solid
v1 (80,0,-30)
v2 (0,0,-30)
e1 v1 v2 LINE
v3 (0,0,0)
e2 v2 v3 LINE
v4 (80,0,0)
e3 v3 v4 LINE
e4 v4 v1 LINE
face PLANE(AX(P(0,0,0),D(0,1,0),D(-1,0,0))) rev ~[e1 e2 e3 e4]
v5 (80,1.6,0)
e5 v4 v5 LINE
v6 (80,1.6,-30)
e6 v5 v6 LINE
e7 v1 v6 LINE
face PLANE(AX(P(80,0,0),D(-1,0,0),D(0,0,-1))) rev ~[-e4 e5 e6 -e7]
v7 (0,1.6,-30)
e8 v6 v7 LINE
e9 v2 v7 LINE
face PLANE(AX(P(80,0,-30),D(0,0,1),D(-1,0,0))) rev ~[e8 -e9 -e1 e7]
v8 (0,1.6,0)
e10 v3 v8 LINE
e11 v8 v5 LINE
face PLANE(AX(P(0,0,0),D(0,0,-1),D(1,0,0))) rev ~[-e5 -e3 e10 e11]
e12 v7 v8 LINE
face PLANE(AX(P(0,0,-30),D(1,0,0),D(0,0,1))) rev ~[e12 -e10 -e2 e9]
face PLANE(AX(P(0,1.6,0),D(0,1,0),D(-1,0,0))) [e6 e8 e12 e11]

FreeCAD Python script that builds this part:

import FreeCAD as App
import Part
import Sketcher

V = App.Vector
Q = App.Units.Quantity


def add_polygon(sketch, points):
    """Adds a closed chain of lines whose ends are joined by coincident constraints."""
    first, n = sketch.GeometryCount, len(points)
    for a, b in zip(points, points[1:] + points[:1]):
        sketch.addGeometry(Part.LineSegment(App.Vector(*a, 0), App.Vector(*b, 0)), False)
    for i in range(n):
        sketch.addConstraint(Sketcher.Constraint("Coincident", first + i, 2, first + (i + 1) % n, 1))

doc = App.newDocument("Part")
body = doc.addObject("PartDesign::Body", "Body")

sketch1 = doc.addObject("Sketcher::SketchObject", "Sketch")
body.addObject(sketch1)
sketch1.AttachmentSupport = (doc.XZ_Plane, [""])
sketch1.MapMode = "FlatFace"
add_polygon(sketch1, [(0, -30), (0, 0), (80, 0), (80, -30)])
sketch1.addConstraint([
    Sketcher.Constraint("Vertical", 0),
    Sketcher.Constraint("Horizontal", 1),
    Sketcher.Constraint("Vertical", 2),
    Sketcher.Constraint("Horizontal", 3),
    Sketcher.Constraint("Coincident", 0, 2, -1, 1),
    Sketcher.Constraint("DistanceX", 1, 1, 1, 2, Q("3.1496 in")),
    Sketcher.Constraint("DistanceY", 0, 1, 0, 2, Q("1.1811 in")),
])
pad1 = doc.addObject("PartDesign::Pad", "Pad")
body.addObject(pad1)
pad1.Profile = sketch1
pad1.Length = Q("0.0629921 in")
pad1.Reversed = True

doc.recompute()
